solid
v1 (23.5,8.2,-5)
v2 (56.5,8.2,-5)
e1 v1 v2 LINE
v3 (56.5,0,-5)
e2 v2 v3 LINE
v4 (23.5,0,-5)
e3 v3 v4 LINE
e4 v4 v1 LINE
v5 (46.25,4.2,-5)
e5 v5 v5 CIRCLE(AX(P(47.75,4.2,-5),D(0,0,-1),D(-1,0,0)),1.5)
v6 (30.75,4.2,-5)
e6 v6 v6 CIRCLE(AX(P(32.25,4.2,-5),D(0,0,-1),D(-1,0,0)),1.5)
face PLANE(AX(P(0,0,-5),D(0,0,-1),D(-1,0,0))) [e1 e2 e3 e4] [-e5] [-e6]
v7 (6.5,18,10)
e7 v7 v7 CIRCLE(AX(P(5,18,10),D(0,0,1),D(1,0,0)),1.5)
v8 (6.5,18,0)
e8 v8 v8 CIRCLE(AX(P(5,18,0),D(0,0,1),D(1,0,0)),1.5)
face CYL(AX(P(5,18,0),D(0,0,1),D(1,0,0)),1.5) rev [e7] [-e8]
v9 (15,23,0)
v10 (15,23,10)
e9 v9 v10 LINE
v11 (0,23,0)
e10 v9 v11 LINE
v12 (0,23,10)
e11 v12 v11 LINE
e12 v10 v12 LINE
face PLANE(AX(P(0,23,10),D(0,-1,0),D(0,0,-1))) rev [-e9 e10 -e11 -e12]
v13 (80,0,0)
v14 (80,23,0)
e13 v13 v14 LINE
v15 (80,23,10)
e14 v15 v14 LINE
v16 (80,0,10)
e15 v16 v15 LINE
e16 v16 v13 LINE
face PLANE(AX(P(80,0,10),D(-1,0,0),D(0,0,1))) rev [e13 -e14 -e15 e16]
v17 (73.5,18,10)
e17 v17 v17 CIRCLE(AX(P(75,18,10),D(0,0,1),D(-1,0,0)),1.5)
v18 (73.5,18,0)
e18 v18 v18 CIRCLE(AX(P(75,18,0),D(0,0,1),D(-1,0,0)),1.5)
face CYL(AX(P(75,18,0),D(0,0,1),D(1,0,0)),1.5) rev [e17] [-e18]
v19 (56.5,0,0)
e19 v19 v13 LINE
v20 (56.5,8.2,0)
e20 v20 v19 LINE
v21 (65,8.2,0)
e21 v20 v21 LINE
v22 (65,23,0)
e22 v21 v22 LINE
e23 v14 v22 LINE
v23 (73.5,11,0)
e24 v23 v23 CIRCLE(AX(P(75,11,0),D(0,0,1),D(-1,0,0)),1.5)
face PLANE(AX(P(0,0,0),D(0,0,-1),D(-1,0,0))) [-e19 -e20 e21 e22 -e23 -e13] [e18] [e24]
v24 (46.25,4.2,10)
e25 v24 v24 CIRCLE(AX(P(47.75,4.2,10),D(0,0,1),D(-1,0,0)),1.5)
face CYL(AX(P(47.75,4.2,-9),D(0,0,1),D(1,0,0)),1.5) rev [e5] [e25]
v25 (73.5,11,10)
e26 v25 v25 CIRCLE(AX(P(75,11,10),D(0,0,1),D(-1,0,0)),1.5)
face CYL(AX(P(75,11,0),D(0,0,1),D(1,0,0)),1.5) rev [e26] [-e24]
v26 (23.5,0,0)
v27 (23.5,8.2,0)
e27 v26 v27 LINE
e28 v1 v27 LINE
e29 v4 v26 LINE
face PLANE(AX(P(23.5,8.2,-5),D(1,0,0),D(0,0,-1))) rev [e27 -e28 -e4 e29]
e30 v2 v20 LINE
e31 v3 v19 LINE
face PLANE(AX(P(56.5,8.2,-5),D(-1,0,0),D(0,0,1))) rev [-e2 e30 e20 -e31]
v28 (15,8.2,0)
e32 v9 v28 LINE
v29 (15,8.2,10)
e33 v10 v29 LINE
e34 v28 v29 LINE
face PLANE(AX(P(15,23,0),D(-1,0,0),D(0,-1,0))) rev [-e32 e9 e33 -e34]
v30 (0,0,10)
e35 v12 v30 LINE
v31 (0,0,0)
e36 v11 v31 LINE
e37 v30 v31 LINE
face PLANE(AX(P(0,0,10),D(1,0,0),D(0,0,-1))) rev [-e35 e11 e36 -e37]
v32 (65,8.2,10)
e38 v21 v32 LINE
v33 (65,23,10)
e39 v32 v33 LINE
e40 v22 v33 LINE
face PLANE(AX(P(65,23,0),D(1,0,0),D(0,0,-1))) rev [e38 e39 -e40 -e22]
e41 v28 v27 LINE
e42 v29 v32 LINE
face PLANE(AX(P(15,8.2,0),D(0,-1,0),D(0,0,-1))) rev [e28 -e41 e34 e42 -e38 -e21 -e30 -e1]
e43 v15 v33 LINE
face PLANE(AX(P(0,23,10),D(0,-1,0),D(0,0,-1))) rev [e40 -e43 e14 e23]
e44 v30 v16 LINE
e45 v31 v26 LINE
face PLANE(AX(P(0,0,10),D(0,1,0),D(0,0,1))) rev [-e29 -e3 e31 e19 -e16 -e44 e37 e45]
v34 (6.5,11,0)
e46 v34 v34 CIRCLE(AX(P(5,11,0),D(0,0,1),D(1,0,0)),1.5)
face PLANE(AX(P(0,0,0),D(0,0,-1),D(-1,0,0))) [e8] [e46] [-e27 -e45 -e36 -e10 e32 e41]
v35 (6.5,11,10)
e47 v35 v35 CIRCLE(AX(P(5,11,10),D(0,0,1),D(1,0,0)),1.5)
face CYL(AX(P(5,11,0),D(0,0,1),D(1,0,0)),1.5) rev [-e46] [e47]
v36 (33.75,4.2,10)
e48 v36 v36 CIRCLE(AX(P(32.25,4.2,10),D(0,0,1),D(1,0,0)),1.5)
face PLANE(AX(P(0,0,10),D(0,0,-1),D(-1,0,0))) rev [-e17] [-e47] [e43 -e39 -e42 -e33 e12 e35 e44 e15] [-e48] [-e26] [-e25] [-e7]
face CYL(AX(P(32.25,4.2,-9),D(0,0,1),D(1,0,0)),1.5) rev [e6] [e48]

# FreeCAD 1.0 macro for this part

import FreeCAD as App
import Part
import Sketcher
from FreeCAD import Vector

doc = App.newDocument("Part")
body = doc.addObject("PartDesign::Body", "Body")

# Sketch on XY plane
sketch1 = body.newObject("Sketcher::SketchObject", "Sketch")
sketch1.AttachmentSupport = (doc.getObject("XY_Plane"), [""])
sketch1.MapMode = "FlatFace"
sketch1.addGeometry([
    Part.LineSegment(Vector(0, 23, 0), Vector(0, 0, 0)),
    Part.LineSegment(Vector(0, 0, 0), Vector(80, 0, 0)),
    Part.LineSegment(Vector(80, 0, 0), Vector(80, 23, 0)),
    Part.LineSegment(Vector(80, 23, 0), Vector(0, 23, 0)),
], False)
sketch1.addConstraint([
    Sketcher.Constraint("Coincident", 0, 2, 1, 1),
    Sketcher.Constraint("Coincident", 1, 2, 2, 1),
    Sketcher.Constraint("Coincident", 2, 2, 3, 1),
    Sketcher.Constraint("Coincident", 3, 2, 0, 1),
    Sketcher.Constraint("Vertical", 0),
    Sketcher.Constraint("Horizontal", 1),
    Sketcher.Constraint("Vertical", 2),
    Sketcher.Constraint("Horizontal", 3),
    Sketcher.Constraint("Coincident", 0, 2, -1, 1),
    Sketcher.Constraint("DistanceX", 1, 1, 1, 2, 80.0),
    Sketcher.Constraint("DistanceY", 0, 2, 0, 1, 23.0),
])
pad1 = body.newObject("PartDesign::Pad", "Pad")
pad1.Profile = sketch1
pad1.Length = 10

# Sketch on XY plane
sketch2 = body.newObject("Sketcher::SketchObject", "Sketch001")
sketch2.AttachmentSupport = (doc.getObject("XY_Plane"), [""])
sketch2.MapMode = "FlatFace"
sketch2.AttachmentOffset = App.Placement(Vector(0, 0, 10), App.Rotation())
sketch2.addGeometry([
    Part.LineSegment(Vector(15, 23, 0), Vector(15, 8.2, 0)),
    Part.LineSegment(Vector(15, 8.2, 0), Vector(65, 8.2, 0)),
    Part.LineSegment(Vector(65, 8.2, 0), Vector(65, 23, 0)),
    Part.LineSegment(Vector(65, 23, 0), Vector(15, 23, 0)),
], False)
sketch2.addConstraint([
    Sketcher.Constraint("Coincident", 0, 2, 1, 1),
    Sketcher.Constraint("Coincident", 1, 2, 2, 1),
    Sketcher.Constraint("Coincident", 2, 2, 3, 1),
    Sketcher.Constraint("Coincident", 3, 2, 0, 1),
    Sketcher.Constraint("Vertical", 0),
    Sketcher.Constraint("Horizontal", 1),
    Sketcher.Constraint("Vertical", 2),
    Sketcher.Constraint("Horizontal", 3),
    Sketcher.Constraint("DistanceX", 1, 1, 1, 2, 50.0),
    Sketcher.Constraint("DistanceY", 0, 2, 0, 1, 14.8),
    Sketcher.Constraint("DistanceX", -1, 1, 0, 2, 15.0),
    Sketcher.Constraint("DistanceY", -1, 1, 2, 2, 23.0),
])
pocket1 = body.newObject("PartDesign::Pocket", "Pocket")
pocket1.Profile = sketch2
pocket1.Length = 10

# Sketch on XY plane
sketch3 = body.newObject("Sketcher::SketchObject", "Sketch002")
sketch3.AttachmentSupport = (doc.getObject("XY_Plane"), [""])
sketch3.MapMode = "FlatFace"
sketch3.AttachmentOffset = App.Placement(Vector(0, 0, 10), App.Rotation())
sketch3.addGeometry([
    Part.Circle(Vector(5, 18, 0), Vector(0, 0, 1), 1.5),
    Part.Circle(Vector(5, 11, 0), Vector(0, 0, 1), 1.5),
    Part.Circle(Vector(75, 11, 0), Vector(0, 0, 1), 1.5),
    Part.Circle(Vector(75, 18, 0), Vector(0, 0, 1), 1.5),
], False)
sketch3.addConstraint([
    Sketcher.Constraint("Equal", 0, 1),
    Sketcher.Constraint("Equal", 1, 2),
    Sketcher.Constraint("Equal", 2, 3),
    Sketcher.Constraint("Horizontal", 1, 3, 2, 3),
    Sketcher.Constraint("Horizontal", 0, 3, 3, 3),
    Sketcher.Constraint("Vertical", 0, 3, 1, 3),
    Sketcher.Constraint("Vertical", 2, 3, 3, 3),
    Sketcher.Constraint("Diameter", 0, 3.0),
    Sketcher.Constraint("DistanceX", -1, 1, 0, 3, 5.0),
    Sketcher.Constraint("DistanceY", -1, 1, 0, 3, 18.0),
    Sketcher.Constraint("DistanceY", -1, 1, 1, 3, 11.0),
    Sketcher.Constraint("DistanceX", -1, 1, 2, 3, 75.0),
])
pocket2 = body.newObject("PartDesign::Pocket", "Pocket001")
pocket2.Profile = sketch3
pocket2.Length = 10

# Sketch on XY plane
sketch4 = body.newObject("Sketcher::SketchObject", "Sketch003")
sketch4.AttachmentSupport = (doc.getObject("XY_Plane"), [""])
sketch4.MapMode = "FlatFace"
sketch4.addGeometry([
    Part.LineSegment(Vector(56.5, 8.2, 0), Vector(56.5, 0, 0)),
    Part.LineSegment(Vector(56.5, 0, 0), Vector(23.5, 0, 0)),
    Part.LineSegment(Vector(23.5, 0, 0), Vector(23.5, 8.2, 0)),
    Part.LineSegment(Vector(23.5, 8.2, 0), Vector(56.5, 8.2, 0)),
], False)
sketch4.addConstraint([
    Sketcher.Constraint("Coincident", 0, 2, 1, 1),
    Sketcher.Constraint("Coincident", 1, 2, 2, 1),
    Sketcher.Constraint("Coincident", 2, 2, 3, 1),
    Sketcher.Constraint("Coincident", 3, 2, 0, 1),
    Sketcher.Constraint("Vertical", 0),
    Sketcher.Constraint("Horizontal", 1),
    Sketcher.Constraint("Vertical", 2),
    Sketcher.Constraint("Horizontal", 3),
    Sketcher.Constraint("PointOnObject", 0, 2, -1),
    Sketcher.Constraint("DistanceX", 1, 2, 1, 1, 33.0),
    Sketcher.Constraint("DistanceY", 0, 2, 0, 1, 8.2),
    Sketcher.Constraint("DistanceX", -1, 1, 0, 2, 56.5),
])
pad2 = body.newObject("PartDesign::Pad", "Pad001")
pad2.Profile = sketch4
pad2.Length = 5
pad2.Reversed = True

# Sketch on XY plane
sketch5 = body.newObject("Sketcher::SketchObject", "Sketch004")
sketch5.AttachmentSupport = (doc.getObject("XY_Plane"), [""])
sketch5.MapMode = "FlatFace"
sketch5.AttachmentOffset = App.Placement(Vector(0, 0, 10), App.Rotation())
sketch5.addGeometry([
    Part.Circle(Vector(32.25, 4.2, 0), Vector(0, 0, 1), 1.5),
    Part.Circle(Vector(47.75, 4.2, 0), Vector(0, 0, 1), 1.5),
], False)
sketch5.addConstraint([
    Sketcher.Constraint("Equal", 0, 1),
    Sketcher.Constraint("Horizontal", 0, 3, 1, 3),
    Sketcher.Constraint("Diameter", 0, 3.0),
    Sketcher.Constraint("DistanceY", -1, 1, 0, 3, 4.2),
    Sketcher.Constraint("DistanceX", 0, 3, 1, 3, 15.5),
    Sketcher.Constraint("DistanceX", -1, 1, 0, 3, 32.25),
])
pocket3 = body.newObject("PartDesign::Pocket", "Pocket002")
pocket3.Profile = sketch5
pocket3.Length = 19

doc.recompute()
